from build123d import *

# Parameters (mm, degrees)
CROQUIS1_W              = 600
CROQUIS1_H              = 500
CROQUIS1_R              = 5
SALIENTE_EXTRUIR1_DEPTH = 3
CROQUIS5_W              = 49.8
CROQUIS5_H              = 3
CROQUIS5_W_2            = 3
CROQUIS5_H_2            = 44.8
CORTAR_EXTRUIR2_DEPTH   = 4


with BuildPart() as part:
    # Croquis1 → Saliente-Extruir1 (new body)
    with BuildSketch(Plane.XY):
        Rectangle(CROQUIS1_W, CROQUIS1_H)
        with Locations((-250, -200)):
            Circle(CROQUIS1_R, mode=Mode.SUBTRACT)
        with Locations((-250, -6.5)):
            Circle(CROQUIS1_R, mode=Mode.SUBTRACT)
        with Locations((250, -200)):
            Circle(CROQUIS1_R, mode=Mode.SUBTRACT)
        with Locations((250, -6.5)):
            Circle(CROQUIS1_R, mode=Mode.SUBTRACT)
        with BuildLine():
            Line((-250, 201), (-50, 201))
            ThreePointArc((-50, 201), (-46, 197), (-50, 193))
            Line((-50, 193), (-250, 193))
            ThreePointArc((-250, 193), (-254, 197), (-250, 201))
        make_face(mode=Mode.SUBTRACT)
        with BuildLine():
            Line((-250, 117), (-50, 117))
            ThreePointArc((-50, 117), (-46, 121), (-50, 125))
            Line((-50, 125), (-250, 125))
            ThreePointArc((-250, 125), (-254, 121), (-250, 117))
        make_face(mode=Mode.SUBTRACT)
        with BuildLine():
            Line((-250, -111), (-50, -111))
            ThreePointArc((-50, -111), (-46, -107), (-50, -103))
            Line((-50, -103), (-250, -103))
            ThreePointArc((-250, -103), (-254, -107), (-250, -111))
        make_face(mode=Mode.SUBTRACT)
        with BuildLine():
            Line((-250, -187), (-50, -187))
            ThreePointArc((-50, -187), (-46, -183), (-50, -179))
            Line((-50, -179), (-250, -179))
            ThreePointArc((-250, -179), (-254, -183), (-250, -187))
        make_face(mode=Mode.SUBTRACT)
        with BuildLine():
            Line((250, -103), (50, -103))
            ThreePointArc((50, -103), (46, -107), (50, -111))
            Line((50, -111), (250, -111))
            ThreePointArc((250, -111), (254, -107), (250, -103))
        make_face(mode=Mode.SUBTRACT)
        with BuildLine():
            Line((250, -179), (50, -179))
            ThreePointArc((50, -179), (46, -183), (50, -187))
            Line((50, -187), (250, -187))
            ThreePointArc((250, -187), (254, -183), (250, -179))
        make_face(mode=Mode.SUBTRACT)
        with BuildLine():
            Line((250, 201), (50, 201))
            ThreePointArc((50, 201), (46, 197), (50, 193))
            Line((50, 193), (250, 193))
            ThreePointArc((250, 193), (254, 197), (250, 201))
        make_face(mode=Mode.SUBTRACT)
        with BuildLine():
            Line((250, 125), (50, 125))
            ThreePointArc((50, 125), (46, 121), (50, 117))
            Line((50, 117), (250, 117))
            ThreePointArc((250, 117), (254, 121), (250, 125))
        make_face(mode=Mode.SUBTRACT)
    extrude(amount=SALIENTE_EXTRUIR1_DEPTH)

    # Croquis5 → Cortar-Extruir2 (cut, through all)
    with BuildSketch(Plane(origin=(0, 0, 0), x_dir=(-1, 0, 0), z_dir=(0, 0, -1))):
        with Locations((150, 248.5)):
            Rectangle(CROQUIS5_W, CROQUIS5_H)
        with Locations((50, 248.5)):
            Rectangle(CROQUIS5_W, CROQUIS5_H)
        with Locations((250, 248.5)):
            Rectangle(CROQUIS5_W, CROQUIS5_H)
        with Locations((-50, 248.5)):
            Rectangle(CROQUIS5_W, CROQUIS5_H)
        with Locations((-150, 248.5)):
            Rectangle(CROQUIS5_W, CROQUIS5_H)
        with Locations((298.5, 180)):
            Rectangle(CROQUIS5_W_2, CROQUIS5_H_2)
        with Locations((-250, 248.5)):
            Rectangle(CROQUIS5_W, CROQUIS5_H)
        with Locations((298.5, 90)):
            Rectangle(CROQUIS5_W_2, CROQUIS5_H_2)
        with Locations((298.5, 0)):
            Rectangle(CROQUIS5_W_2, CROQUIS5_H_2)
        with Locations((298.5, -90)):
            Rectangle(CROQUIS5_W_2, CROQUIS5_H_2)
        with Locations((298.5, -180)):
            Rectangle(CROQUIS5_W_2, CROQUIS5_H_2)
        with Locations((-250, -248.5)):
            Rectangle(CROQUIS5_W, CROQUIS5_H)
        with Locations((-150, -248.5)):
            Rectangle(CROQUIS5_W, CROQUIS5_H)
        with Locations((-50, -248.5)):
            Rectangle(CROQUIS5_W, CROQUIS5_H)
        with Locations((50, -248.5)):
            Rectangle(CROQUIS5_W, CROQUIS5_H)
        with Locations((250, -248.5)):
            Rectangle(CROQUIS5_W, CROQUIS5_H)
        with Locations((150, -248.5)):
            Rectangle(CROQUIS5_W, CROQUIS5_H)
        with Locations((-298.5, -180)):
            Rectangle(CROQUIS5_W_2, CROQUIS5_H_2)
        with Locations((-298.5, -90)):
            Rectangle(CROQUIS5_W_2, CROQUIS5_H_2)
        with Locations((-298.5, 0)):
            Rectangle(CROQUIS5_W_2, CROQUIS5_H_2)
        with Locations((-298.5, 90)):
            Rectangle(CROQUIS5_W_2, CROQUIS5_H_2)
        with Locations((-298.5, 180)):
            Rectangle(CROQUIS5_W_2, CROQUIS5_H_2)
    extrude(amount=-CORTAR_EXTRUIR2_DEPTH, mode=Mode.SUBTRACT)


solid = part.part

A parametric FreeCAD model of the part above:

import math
import FreeCAD as App
import Part
import Sketcher


def add_polygon(sketch, points):
    """Adds a closed chain of lines whose ends are joined by coincident constraints."""
    first, n = sketch.GeometryCount, len(points)
    for a, b in zip(points, points[1:] + points[:1]):
        sketch.addGeometry(Part.LineSegment(App.Vector(*a, 0), App.Vector(*b, 0)), False)
    for i in range(n):
        sketch.addConstraint(Sketcher.Constraint("Coincident", first + i, 2, first + (i + 1) % n, 1))

doc = App.newDocument("Part")
body = doc.addObject("PartDesign::Body", "Body")

# Sketch on XY plane
sketch1 = body.newObject("Sketcher::SketchObject", "Sketch")
sketch1.AttachmentSupport = (doc.getObject("XY_Plane"), [""])
sketch1.MapMode = "FlatFace"
add_polygon(sketch1, [(-300, 250), (-300, -250), (300, -250), (300, 250)])  # lines 0-3
sketch1.addGeometry(Part.Circle(App.Vector(-250, -200, 0), App.Vector(0, 0, 1), 5), False)  # 4
sketch1.addGeometry(Part.LineSegment(App.Vector(-50, -187, 0), App.Vector(-250, -187, 0)), False)  # 5
sketch1.addGeometry(Part.ArcOfCircle(Part.Circle(App.Vector(-250, -183, 0), App.Vector(0, 0, 1), 4), math.radians(90), math.radians(270)), False)  # 6
sketch1.addGeometry(Part.LineSegment(App.Vector(-250, -179, 0), App.Vector(-50, -179, 0)), False)  # 7
sketch1.addGeometry(Part.ArcOfCircle(Part.Circle(App.Vector(-50, -183, 0), App.Vector(0, 0, 1), 4), math.radians(-90), math.radians(90)), False)  # 8
sketch1.addGeometry(Part.LineSegment(App.Vector(-50, -111, 0), App.Vector(-250, -111, 0)), False)  # 9
sketch1.addGeometry(Part.ArcOfCircle(Part.Circle(App.Vector(-250, -107, 0), App.Vector(0, 0, 1), 4), math.radians(90), math.radians(270)), False)  # 10
sketch1.addGeometry(Part.LineSegment(App.Vector(-250, -103, 0), App.Vector(-50, -103, 0)), False)  # 11
sketch1.addGeometry(Part.ArcOfCircle(Part.Circle(App.Vector(-50, -107, 0), App.Vector(0, 0, 1), 4), math.radians(-90), math.radians(90)), False)  # 12
sketch1.addGeometry(Part.Circle(App.Vector(-250, -6.5, 0), App.Vector(0, 0, 1), 5), False)  # 13
sketch1.addGeometry(Part.LineSegment(App.Vector(50, -179, 0), App.Vector(250, -179, 0)), False)  # 14
sketch1.addGeometry(Part.ArcOfCircle(Part.Circle(App.Vector(250, -183, 0), App.Vector(0, 0, 1), 4), math.radians(-90), math.radians(90)), False)  # 15
sketch1.addGeometry(Part.LineSegment(App.Vector(250, -187, 0), App.Vector(50, -187, 0)), False)  # 16
sketch1.addGeometry(Part.ArcOfCircle(Part.Circle(App.Vector(50, -183, 0), App.Vector(0, 0, 1), 4), math.radians(90), math.radians(270)), False)  # 17
sketch1.addGeometry(Part.Circle(App.Vector(250, -200, 0), App.Vector(0, 0, 1), 5), False)  # 18
sketch1.addGeometry(Part.LineSegment(App.Vector(50, -103, 0), App.Vector(250, -103, 0)), False)  # 19
sketch1.addGeometry(Part.ArcOfCircle(Part.Circle(App.Vector(250, -107, 0), App.Vector(0, 0, 1), 4), math.radians(-90), math.radians(90)), False)  # 20
sketch1.addGeometry(Part.LineSegment(App.Vector(250, -111, 0), App.Vector(50, -111, 0)), False)  # 21
sketch1.addGeometry(Part.ArcOfCircle(Part.Circle(App.Vector(50, -107, 0), App.Vector(0, 0, 1), 4), math.radians(90), math.radians(270)), False)  # 22
sketch1.addGeometry(Part.Circle(App.Vector(250, -6.5, 0), App.Vector(0, 0, 1), 5), False)  # 23
sketch1.addGeometry(Part.LineSegment(App.Vector(-50, 117, 0), App.Vector(-250, 117, 0)), False)  # 24
sketch1.addGeometry(Part.ArcOfCircle(Part.Circle(App.Vector(-250, 121, 0), App.Vector(0, 0, 1), 4), math.radians(90), math.radians(270)), False)  # 25
sketch1.addGeometry(Part.LineSegment(App.Vector(-250, 125, 0), App.Vector(-50, 125, 0)), False)  # 26
sketch1.addGeometry(Part.ArcOfCircle(Part.Circle(App.Vector(-50, 121, 0), App.Vector(0, 0, 1), 4), math.radians(-90), math.radians(90)), False)  # 27
sketch1.addGeometry(Part.ArcOfCircle(Part.Circle(App.Vector(-250, 197, 0), App.Vector(0, 0, 1), 4), math.radians(90), math.radians(270)), False)  # 28
sketch1.addGeometry(Part.LineSegment(App.Vector(-250, 201, 0), App.Vector(-50, 201, 0)), False)  # 29
sketch1.addGeometry(Part.ArcOfCircle(Part.Circle(App.Vector(-50, 197, 0), App.Vector(0, 0, 1), 4), math.radians(-90), math.radians(90)), False)  # 30
sketch1.addGeometry(Part.LineSegment(App.Vector(-50, 193, 0), App.Vector(-250, 193, 0)), False)  # 31
sketch1.addGeometry(Part.LineSegment(App.Vector(50, 125, 0), App.Vector(250, 125, 0)), False)  # 32
sketch1.addGeometry(Part.ArcOfCircle(Part.Circle(App.Vector(250, 121, 0), App.Vector(0, 0, 1), 4), math.radians(-90), math.radians(90)), False)  # 33
sketch1.addGeometry(Part.LineSegment(App.Vector(250, 117, 0), App.Vector(50, 117, 0)), False)  # 34
sketch1.addGeometry(Part.ArcOfCircle(Part.Circle(App.Vector(50, 121, 0), App.Vector(0, 0, 1), 4), math.radians(90), math.radians(270)), False)  # 35
sketch1.addGeometry(Part.LineSegment(App.Vector(50, 201, 0), App.Vector(250, 201, 0)), False)  # 36
sketch1.addGeometry(Part.ArcOfCircle(Part.Circle(App.Vector(250, 197, 0), App.Vector(0, 0, 1), 4), math.radians(-90), math.radians(90)), False)  # 37
sketch1.addGeometry(Part.LineSegment(App.Vector(250, 193, 0), App.Vector(50, 193, 0)), False)  # 38
sketch1.addGeometry(Part.ArcOfCircle(Part.Circle(App.Vector(50, 197, 0), App.Vector(0, 0, 1), 4), math.radians(90), math.radians(270)), False)  # 39
sketch1.addConstraint(Sketcher.Constraint("Tangent", 5, 2, 6, 2))
sketch1.addConstraint(Sketcher.Constraint("Tangent", 6, 1, 7, 1))
sketch1.addConstraint(Sketcher.Constraint("Tangent", 7, 2, 8, 2))
sketch1.addConstraint(Sketcher.Constraint("Tangent", 8, 1, 5, 1))
sketch1.addConstraint(Sketcher.Constraint("Tangent", 9, 2, 10, 2))
sketch1.addConstraint(Sketcher.Constraint("Tangent", 10, 1, 11, 1))
sketch1.addConstraint(Sketcher.Constraint("Tangent", 11, 2, 12, 2))
sketch1.addConstraint(Sketcher.Constraint("Tangent", 12, 1, 9, 1))
sketch1.addConstraint(Sketcher.Constraint("Tangent", 14, 2, 15, 2))
sketch1.addConstraint(Sketcher.Constraint("Tangent", 15, 1, 16, 1))
sketch1.addConstraint(Sketcher.Constraint("Tangent", 16, 2, 17, 2))
sketch1.addConstraint(Sketcher.Constraint("Tangent", 17, 1, 14, 1))
sketch1.addConstraint(Sketcher.Constraint("Tangent", 19, 2, 20, 2))
sketch1.addConstraint(Sketcher.Constraint("Tangent", 20, 1, 21, 1))
sketch1.addConstraint(Sketcher.Constraint("Tangent", 21, 2, 22, 2))
sketch1.addConstraint(Sketcher.Constraint("Tangent", 22, 1, 19, 1))
sketch1.addConstraint(Sketcher.Constraint("Tangent", 24, 2, 25, 2))
sketch1.addConstraint(Sketcher.Constraint("Tangent", 25, 1, 26, 1))
sketch1.addConstraint(Sketcher.Constraint("Tangent", 26, 2, 27, 2))
sketch1.addConstraint(Sketcher.Constraint("Tangent", 27, 1, 24, 1))
sketch1.addConstraint(Sketcher.Constraint("Tangent", 28, 1, 29, 1))
sketch1.addConstraint(Sketcher.Constraint("Tangent", 29, 2, 30, 2))
sketch1.addConstraint(Sketcher.Constraint("Tangent", 30, 1, 31, 1))
sketch1.addConstraint(Sketcher.Constraint("Tangent", 31, 2, 28, 2))
sketch1.addConstraint(Sketcher.Constraint("Tangent", 32, 2, 33, 2))
sketch1.addConstraint(Sketcher.Constraint("Tangent", 33, 1, 34, 1))
sketch1.addConstraint(Sketcher.Constraint("Tangent", 34, 2, 35, 2))
sketch1.addConstraint(Sketcher.Constraint("Tangent", 35, 1, 32, 1))
sketch1.addConstraint(Sketcher.Constraint("Tangent", 36, 2, 37, 2))
sketch1.addConstraint(Sketcher.Constraint("Tangent", 37, 1, 38, 1))
sketch1.addConstraint(Sketcher.Constraint("Tangent", 38, 2, 39, 2))
sketch1.addConstraint(Sketcher.Constraint("Tangent", 39, 1, 36, 1))
sketch1.addConstraint(Sketcher.Constraint("Vertical", 0))
sketch1.addConstraint(Sketcher.Constraint("Horizontal", 1))
sketch1.addConstraint(Sketcher.Constraint("Vertical", 2))
sketch1.addConstraint(Sketcher.Constraint("Horizontal", 3))
sketch1.addConstraint(Sketcher.Constraint("Horizontal", 5))
sketch1.addConstraint(Sketcher.Constraint("Horizontal", 7))
sketch1.addConstraint(Sketcher.Constraint("Horizontal", 9))
sketch1.addConstraint(Sketcher.Constraint("Horizontal", 11))
sketch1.addConstraint(Sketcher.Constraint("Horizontal", 14))
sketch1.addConstraint(Sketcher.Constraint("Horizontal", 16))
sketch1.addConstraint(Sketcher.Constraint("Horizontal", 19))
sketch1.addConstraint(Sketcher.Constraint("Horizontal", 21))
sketch1.addConstraint(Sketcher.Constraint("Horizontal", 24))
sketch1.addConstraint(Sketcher.Constraint("Horizontal", 26))
sketch1.addConstraint(Sketcher.Constraint("Horizontal", 29))
sketch1.addConstraint(Sketcher.Constraint("Horizontal", 31))
sketch1.addConstraint(Sketcher.Constraint("Horizontal", 32))
sketch1.addConstraint(Sketcher.Constraint("Horizontal", 34))
sketch1.addConstraint(Sketcher.Constraint("Horizontal", 36))
sketch1.addConstraint(Sketcher.Constraint("Horizontal", 38))
sketch1.addConstraint(Sketcher.Constraint("Equal", 8, 10))
sketch1.addConstraint(Sketcher.Constraint("Equal", 4, 13))
sketch1.addConstraint(Sketcher.Constraint("Equal", 12, 15))
sketch1.addConstraint(Sketcher.Constraint("Equal", 13, 18))
sketch1.addConstraint(Sketcher.Constraint("Equal", 17, 20))
sketch1.addConstraint(Sketcher.Constraint("Equal", 18, 23))
sketch1.addConstraint(Sketcher.Constraint("Equal", 22, 25))
sketch1.addConstraint(Sketcher.Constraint("Equal", 27, 28))
sketch1.addConstraint(Sketcher.Constraint("Equal", 30, 33))
sketch1.addConstraint(Sketcher.Constraint("Equal", 35, 37))
sketch1.addConstraint(Sketcher.Constraint("Symmetric", 0, 2, 2, 2, -1, 1))
sketch1.addConstraint(Sketcher.Constraint("Symmetric", 6, 3, 15, 3, -2))
sketch1.addConstraint(Sketcher.Constraint("Symmetric", 4, 3, 18, 3, -2))
sketch1.addConstraint(Sketcher.Constraint("Symmetric", 10, 3, 20, 3, -2))
sketch1.addConstraint(Sketcher.Constraint("Symmetric", 13, 3, 23, 3, -2))
sketch1.addConstraint(Sketcher.Constraint("Symmetric", 25, 3, 33, 3, -2))
sketch1.addConstraint(Sketcher.Constraint("Symmetric", 28, 3, 37, 3, -2))
sketch1.addConstraint(Sketcher.Constraint("Vertical", 4, 3, 6, 3))
sketch1.addConstraint(Sketcher.Constraint("Vertical", 6, 3, 10, 3))
sketch1.addConstraint(Sketcher.Constraint("Vertical", 8, 3, 12, 3))
sketch1.addConstraint(Sketcher.Constraint("Vertical", 10, 3, 13, 3))
sketch1.addConstraint(Sketcher.Constraint("Vertical", 17, 3, 22, 3))
sketch1.addConstraint(Sketcher.Constraint("Vertical", 13, 3, 25, 3))
sketch1.addConstraint(Sketcher.Constraint("Vertical", 12, 3, 27, 3))
sketch1.addConstraint(Sketcher.Constraint("Vertical", 25, 3, 28, 3))
sketch1.addConstraint(Sketcher.Constraint("Vertical", 27, 3, 30, 3))
sketch1.addConstraint(Sketcher.Constraint("Vertical", 22, 3, 35, 3))
sketch1.addConstraint(Sketcher.Constraint("Vertical", 35, 3, 39, 3))
sketch1.addConstraint(Sketcher.Constraint("Equal", 11, 14))
sketch1.addConstraint(Sketcher.Constraint("Diameter", 4, 10.0))
sketch1.addConstraint(Sketcher.Constraint("Radius", 6, 4.0))
sketch1.addConstraint(Sketcher.Constraint("DistanceX", 1, 1, 1, 2, 600.0))
sketch1.addConstraint(Sketcher.Constraint("DistanceX", 5, 2, 5, 1, 200.0))
sketch1.addConstraint(Sketcher.Constraint("DistanceY", 0, 2, 0, 1, 500.0))
sketch1.addConstraint(Sketcher.Constraint("DistanceX", 4, 3, -1, 1, 250.0))
sketch1.addConstraint(Sketcher.Constraint("DistanceY", 4, 3, -1, 1, 200.0))
sketch1.addConstraint(Sketcher.Constraint("DistanceY", 6, 3, -1, 1, 183.0))
sketch1.addConstraint(Sketcher.Constraint("DistanceY", 10, 3, -1, 1, 107.0))
sketch1.addConstraint(Sketcher.Constraint("DistanceY", -1, 1, 25, 3, 121.0))
sketch1.addConstraint(Sketcher.Constraint("DistanceY", -1, 1, 28, 3, 197.0))
sketch1.addConstraint(Sketcher.Constraint("DistanceY", 13, 3, -1, 1, 6.5))
pad1 = body.newObject("PartDesign::Pad", "Pad")
pad1.Profile = sketch1
pad1.Length = 3

# Sketch on XY plane
sketch2 = body.newObject("Sketcher::SketchObject", "Sketch001")
sketch2.AttachmentSupport = (doc.getObject("XY_Plane"), [""])
sketch2.MapMode = "FlatFace"
add_polygon(sketch2, [(-125.1, 250), (-125.1, 247), (-174.9, 247), (-174.9, 250)])  # lines 0-3
add_polygon(sketch2, [(-25.1, 250), (-25.1, 247), (-74.9, 247), (-74.9, 250)])  # lines 4-7
add_polygon(sketch2, [(-225.1, 250), (-225.1, 247), (-274.9, 247), (-274.9, 250)])  # lines 8-11
add_polygon(sketch2, [(74.9, 250), (74.9, 247), (25.1, 247), (25.1, 250)])  # lines 12-15
add_polygon(sketch2, [(174.9, 250), (174.9, 247), (125.1, 247), (125.1, 250)])  # lines 16-19
add_polygon(sketch2, [(-297, 202.4), (-297, 157.6), (-300, 157.6), (-300, 202.4)])  # lines 20-23
add_polygon(sketch2, [(274.9, 250), (274.9, 247), (225.1, 247), (225.1, 250)])  # lines 24-27
add_polygon(sketch2, [(-297, 112.4), (-297, 67.6), (-300, 67.6), (-300, 112.4)])  # lines 28-31
add_polygon(sketch2, [(-297, 22.4), (-297, -22.4), (-300, -22.4), (-300, 22.4)])  # lines 32-35
add_polygon(sketch2, [(-297, -67.6), (-297, -112.4), (-300, -112.4), (-300, -67.6)])  # lines 36-39
add_polygon(sketch2, [(-297, -157.6), (-297, -202.4), (-300, -202.4), (-300, -157.6)])  # lines 40-43
add_polygon(sketch2, [(274.9, -247), (274.9, -250), (225.1, -250), (225.1, -247)])  # lines 44-47
add_polygon(sketch2, [(174.9, -247), (174.9, -250), (125.1, -250), (125.1, -247)])  # lines 48-51
add_polygon(sketch2, [(74.9, -247), (74.9, -250), (25.1, -250), (25.1, -247)])  # lines 52-55
add_polygon(sketch2, [(-25.1, -247), (-25.1, -250), (-74.9, -250), (-74.9, -247)])  # lines 56-59
add_polygon(sketch2, [(-225.1, -247), (-225.1, -250), (-274.9, -250), (-274.9, -247)])  # lines 60-63
add_polygon(sketch2, [(-125.1, -247), (-125.1, -250), (-174.9, -250), (-174.9, -247)])  # lines 64-67
add_polygon(sketch2, [(300, -157.6), (300, -202.4), (297, -202.4), (297, -157.6)])  # lines 68-71
add_polygon(sketch2, [(300, -67.6), (300, -112.4), (297, -112.4), (297, -67.6)])  # lines 72-75
add_polygon(sketch2, [(300, 22.4), (300, -22.4), (297, -22.4), (297, 22.4)])  # lines 76-79
add_polygon(sketch2, [(300, 112.4), (300, 67.6), (297, 67.6), (297, 112.4)])  # lines 80-83
add_polygon(sketch2, [(300, 202.4), (300, 157.6), (297, 157.6), (297, 202.4)])  # lines 84-87
sketch2.addConstraint(Sketcher.Constraint("Vertical", 0))
sketch2.addConstraint(Sketcher.Constraint("Horizontal", 1))
sketch2.addConstraint(Sketcher.Constraint("Vertical", 2))
sketch2.addConstraint(Sketcher.Constraint("Horizontal", 3))
sketch2.addConstraint(Sketcher.Constraint("Vertical", 4))
sketch2.addConstraint(Sketcher.Constraint("Horizontal", 5))
sketch2.addConstraint(Sketcher.Constraint("Vertical", 6))
sketch2.addConstraint(Sketcher.Constraint("Horizontal", 7))
sketch2.addConstraint(Sketcher.Constraint("Vertical", 8))
sketch2.addConstraint(Sketcher.Constraint("Horizontal", 9))
sketch2.addConstraint(Sketcher.Constraint("Vertical", 10))
sketch2.addConstraint(Sketcher.Constraint("Horizontal", 11))
sketch2.addConstraint(Sketcher.Constraint("Vertical", 12))
sketch2.addConstraint(Sketcher.Constraint("Horizontal", 13))
sketch2.addConstraint(Sketcher.Constraint("Vertical", 14))
sketch2.addConstraint(Sketcher.Constraint("Horizontal", 15))
sketch2.addConstraint(Sketcher.Constraint("Vertical", 16))
sketch2.addConstraint(Sketcher.Constraint("Horizontal", 17))
sketch2.addConstraint(Sketcher.Constraint("Vertical", 18))
sketch2.addConstraint(Sketcher.Constraint("Horizontal", 19))
sketch2.addConstraint(Sketcher.Constraint("Vertical", 20))
sketch2.addConstraint(Sketcher.Constraint("Horizontal", 21))
sketch2.addConstraint(Sketcher.Constraint("Vertical", 22))
sketch2.addConstraint(Sketcher.Constraint("Horizontal", 23))
sketch2.addConstraint(Sketcher.Constraint("Vertical", 24))
sketch2.addConstraint(Sketcher.Constraint("Horizontal", 25))
sketch2.addConstraint(Sketcher.Constraint("Vertical", 26))
sketch2.addConstraint(Sketcher.Constraint("Horizontal", 27))
sketch2.addConstraint(Sketcher.Constraint("Vertical", 28))
sketch2.addConstraint(Sketcher.Constraint("Horizontal", 29))
sketch2.addConstraint(Sketcher.Constraint("Vertical", 30))
sketch2.addConstraint(Sketcher.Constraint("Horizontal", 31))
sketch2.addConstraint(Sketcher.Constraint("Vertical", 32))
sketch2.addConstraint(Sketcher.Constraint("Horizontal", 33))
sketch2.addConstraint(Sketcher.Constraint("Vertical", 34))
sketch2.addConstraint(Sketcher.Constraint("Horizontal", 35))
sketch2.addConstraint(Sketcher.Constraint("Vertical", 36))
sketch2.addConstraint(Sketcher.Constraint("Horizontal", 37))
sketch2.addConstraint(Sketcher.Constraint("Vertical", 38))
sketch2.addConstraint(Sketcher.Constraint("Horizontal", 39))
sketch2.addConstraint(Sketcher.Constraint("Vertical", 40))
sketch2.addConstraint(Sketcher.Constraint("Horizontal", 41))
sketch2.addConstraint(Sketcher.Constraint("Vertical", 42))
sketch2.addConstraint(Sketcher.Constraint("Horizontal", 43))
sketch2.addConstraint(Sketcher.Constraint("Vertical", 44))
sketch2.addConstraint(Sketcher.Constraint("Horizontal", 45))
sketch2.addConstraint(Sketcher.Constraint("Vertical", 46))
sketch2.addConstraint(Sketcher.Constraint("Horizontal", 47))
sketch2.addConstraint(Sketcher.Constraint("Vertical", 48))
sketch2.addConstraint(Sketcher.Constraint("Horizontal", 49))
sketch2.addConstraint(Sketcher.Constraint("Vertical", 50))
sketch2.addConstraint(Sketcher.Constraint("Horizontal", 51))
sketch2.addConstraint(Sketcher.Constraint("Vertical", 52))
sketch2.addConstraint(Sketcher.Constraint("Horizontal", 53))
sketch2.addConstraint(Sketcher.Constraint("Vertical", 54))
sketch2.addConstraint(Sketcher.Constraint("Horizontal", 55))
sketch2.addConstraint(Sketcher.Constraint("Vertical", 56))
sketch2.addConstraint(Sketcher.Constraint("Horizontal", 57))
sketch2.addConstraint(Sketcher.Constraint("Vertical", 58))
sketch2.addConstraint(Sketcher.Constraint("Horizontal", 59))
sketch2.addConstraint(Sketcher.Constraint("Vertical", 60))
sketch2.addConstraint(Sketcher.Constraint("Horizontal", 61))
sketch2.addConstraint(Sketcher.Constraint("Vertical", 62))
sketch2.addConstraint(Sketcher.Constraint("Horizontal", 63))
sketch2.addConstraint(Sketcher.Constraint("Vertical", 64))
sketch2.addConstraint(Sketcher.Constraint("Horizontal", 65))
sketch2.addConstraint(Sketcher.Constraint("Vertical", 66))
sketch2.addConstraint(Sketcher.Constraint("Horizontal", 67))
sketch2.addConstraint(Sketcher.Constraint("Vertical", 68))
sketch2.addConstraint(Sketcher.Constraint("Horizontal", 69))
sketch2.addConstraint(Sketcher.Constraint("Vertical", 70))
sketch2.addConstraint(Sketcher.Constraint("Horizontal", 71))
sketch2.addConstraint(Sketcher.Constraint("Vertical", 72))
sketch2.addConstraint(Sketcher.Constraint("Horizontal", 73))
sketch2.addConstraint(Sketcher.Constraint("Vertical", 74))
sketch2.addConstraint(Sketcher.Constraint("Horizontal", 75))
sketch2.addConstraint(Sketcher.Constraint("Vertical", 76))
sketch2.addConstraint(Sketcher.Constraint("Horizontal", 77))
sketch2.addConstraint(Sketcher.Constraint("Vertical", 78))
sketch2.addConstraint(Sketcher.Constraint("Horizontal", 79))
sketch2.addConstraint(Sketcher.Constraint("Vertical", 80))
sketch2.addConstraint(Sketcher.Constraint("Horizontal", 81))
sketch2.addConstraint(Sketcher.Constraint("Vertical", 82))
sketch2.addConstraint(Sketcher.Constraint("Horizontal", 83))
sketch2.addConstraint(Sketcher.Constraint("Vertical", 84))
sketch2.addConstraint(Sketcher.Constraint("Horizontal", 85))
sketch2.addConstraint(Sketcher.Constraint("Vertical", 86))
sketch2.addConstraint(Sketcher.Constraint("Horizontal", 87))
sketch2.addConstraint(Sketcher.Constraint("Symmetric", 10, 2, 44, 2, -1, 1))
sketch2.addConstraint(Sketcher.Constraint("Symmetric", 8, 2, 46, 2, -1, 1))
sketch2.addConstraint(Sketcher.Constraint("Symmetric", 2, 2, 48, 2, -1, 1))
sketch2.addConstraint(Sketcher.Constraint("Symmetric", 0, 2, 50, 2, -1, 1))
sketch2.addConstraint(Sketcher.Constraint("Symmetric", 6, 2, 52, 2, -1, 1))
sketch2.addConstraint(Sketcher.Constraint("Symmetric", 4, 2, 54, 2, -1, 1))
sketch2.addConstraint(Sketcher.Constraint("Symmetric", 14, 2, 56, 2, -1, 1))
sketch2.addConstraint(Sketcher.Constraint("Symmetric", 12, 2, 58, 2, -1, 1))
sketch2.addConstraint(Sketcher.Constraint("Symmetric", 26, 2, 60, 2, -1, 1))
sketch2.addConstraint(Sketcher.Constraint("Symmetric", 24, 2, 62, 2, -1, 1))
sketch2.addConstraint(Sketcher.Constraint("Symmetric", 18, 2, 64, 2, -1, 1))
sketch2.addConstraint(Sketcher.Constraint("Symmetric", 16, 2, 66, 2, -1, 1))
sketch2.addConstraint(Sketcher.Constraint("Symmetric", 22, 2, 68, 2, -1, 1))
sketch2.addConstraint(Sketcher.Constraint("Symmetric", 20, 2, 70, 2, -1, 1))
sketch2.addConstraint(Sketcher.Constraint("Symmetric", 30, 2, 72, 2, -1, 1))
sketch2.addConstraint(Sketcher.Constraint("Symmetric", 28, 2, 74, 2, -1, 1))
sketch2.addConstraint(Sketcher.Constraint("Symmetric", 34, 2, 76, 2, -1, 1))
sketch2.addConstraint(Sketcher.Constraint("Symmetric", 32, 2, 78, 2, -1, 1))
sketch2.addConstraint(Sketcher.Constraint("Symmetric", 38, 2, 80, 2, -1, 1))
sketch2.addConstraint(Sketcher.Constraint("Symmetric", 36, 2, 82, 2, -1, 1))
sketch2.addConstraint(Sketcher.Constraint("Symmetric", 42, 2, 84, 2, -1, 1))
sketch2.addConstraint(Sketcher.Constraint("Symmetric", 40, 2, 86, 2, -1, 1))
sketch2.addConstraint(Sketcher.Constraint("Symmetric", 5, 2, 12, 2, -2))
sketch2.addConstraint(Sketcher.Constraint("Symmetric", 7, 2, 14, 2, -2))
sketch2.addConstraint(Sketcher.Constraint("Symmetric", 1, 2, 16, 2, -2))
sketch2.addConstraint(Sketcher.Constraint("Symmetric", 3, 2, 18, 2, -2))
sketch2.addConstraint(Sketcher.Constraint("Symmetric", 9, 2, 24, 2, -2))
sketch2.addConstraint(Sketcher.Constraint("Symmetric", 11, 2, 26, 2, -2))
sketch2.addConstraint(Sketcher.Constraint("Symmetric", 41, 2, 68, 2, -2))
sketch2.addConstraint(Sketcher.Constraint("Symmetric", 43, 2, 70, 2, -2))
sketch2.addConstraint(Sketcher.Constraint("Symmetric", 37, 2, 72, 2, -2))
sketch2.addConstraint(Sketcher.Constraint("Symmetric", 39, 2, 74, 2, -2))
sketch2.addConstraint(Sketcher.Constraint("Horizontal", 1, 2, 4, 2))
sketch2.addConstraint(Sketcher.Constraint("Horizontal", 3, 2, 6, 2))
sketch2.addConstraint(Sketcher.Constraint("Horizontal", 5, 2, 8, 2))
sketch2.addConstraint(Sketcher.Constraint("Horizontal", 7, 2, 10, 2))
sketch2.addConstraint(Sketcher.Constraint("Horizontal", 33, 2, 76, 2))
sketch2.addConstraint(Sketcher.Constraint("Vertical", 23, 2, 28, 2))
sketch2.addConstraint(Sketcher.Constraint("Vertical", 22, 2, 29, 2))
sketch2.addConstraint(Sketcher.Constraint("Vertical", 31, 2, 32, 2))
sketch2.addConstraint(Sketcher.Constraint("Vertical", 30, 2, 33, 2))
sketch2.addConstraint(Sketcher.Constraint("Equal", 3, 5))
sketch2.addConstraint(Sketcher.Constraint("Equal", 7, 9))
sketch2.addConstraint(Sketcher.Constraint("Equal", 87, 0))
sketch2.addConstraint(Sketcher.Constraint("Equal", 22, 28))
sketch2.addConstraint(Sketcher.Constraint("Equal", 30, 32))
sketch2.addConstraint(Sketcher.Constraint("DistanceX", 21, 2, 21, 1, 3.0))
sketch2.addConstraint(Sketcher.Constraint("DistanceX", 1, 2, 1, 1, 49.8))
sketch2.addConstraint(Sketcher.Constraint("DistanceY", 20, 2, 20, 1, 44.8))
sketch2.addConstraint(Sketcher.Constraint("DistanceY", -1, 1, 0, 2, 247.0))
sketch2.addConstraint(Sketcher.Constraint("DistanceX", 20, 2, -1, 1, 297.0))
sketch2.addConstraint(Sketcher.Constraint("DistanceX", 0, 2, -1, 1, 125.1))
sketch2.addConstraint(Sketcher.Constraint("DistanceX", 4, 2, -1, 1, 25.1))
sketch2.addConstraint(Sketcher.Constraint("DistanceX", 8, 2, -1, 1, 225.1))
sketch2.addConstraint(Sketcher.Constraint("DistanceY", -1, 1, 20, 2, 157.6))
sketch2.addConstraint(Sketcher.Constraint("DistanceY", -1, 1, 28, 2, 67.6))
pocket1 = body.newObject("PartDesign::Pocket", "Pocket")
pocket1.Profile = sketch2
pocket1.Type = "ThroughAll"
pocket1.Reversed = True

doc.recompute()
